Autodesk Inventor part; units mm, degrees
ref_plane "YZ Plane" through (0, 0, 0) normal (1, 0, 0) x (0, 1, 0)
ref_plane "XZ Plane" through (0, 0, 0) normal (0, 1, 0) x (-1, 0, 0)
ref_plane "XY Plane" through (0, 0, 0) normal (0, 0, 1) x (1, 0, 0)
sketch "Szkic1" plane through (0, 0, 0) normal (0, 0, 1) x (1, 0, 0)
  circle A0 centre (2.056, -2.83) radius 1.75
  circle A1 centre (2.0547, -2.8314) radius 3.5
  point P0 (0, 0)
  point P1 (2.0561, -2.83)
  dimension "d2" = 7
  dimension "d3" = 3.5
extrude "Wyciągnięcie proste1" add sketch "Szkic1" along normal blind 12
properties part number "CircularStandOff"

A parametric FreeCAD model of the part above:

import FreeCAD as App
import Part
import Sketcher
Q = App.Units.Quantity

doc = App.newDocument("Part")
body = doc.addObject("PartDesign::Body", "Body")

sketch1 = body.newObject("Sketcher::SketchObject", "Sketch")
sketch1.AttachmentSupport = (doc.getObject("XY_Plane"), [""])
sketch1.MapMode = "FlatFace"
sketch1.addGeometry(Part.Circle(App.Vector(2.0547, -2.8314, 0), App.Vector(0, 0, 1), 3.5), False)
sketch1.addGeometry(Part.Circle(App.Vector(2.056, -2.83, 0), App.Vector(0, 0, 1), 1.75), False)
sketch1.addConstraint(Sketcher.Constraint("Diameter", 0, Q("7 mm")))
sketch1.addConstraint(Sketcher.Constraint("Diameter", 1, Q("3.5 mm")))
sketch1.addConstraint(Sketcher.Constraint("DistanceY", 1, 3, -1, 1, Q("2.83 mm")))
sketch1.addConstraint(Sketcher.Constraint("DistanceX", -1, 1, 1, 3, Q("2.056 mm")))
sketch1.addConstraint(Sketcher.Constraint("DistanceX", -1, 1, 0, 3, Q("2.0547 mm")))
sketch1.addConstraint(Sketcher.Constraint("DistanceY", 0, 3, -1, 1, Q("2.8314 mm")))
pad1 = body.newObject("PartDesign::Pad", "Pad")
pad1.Profile = sketch1
pad1.Length = 12

doc.recompute()
